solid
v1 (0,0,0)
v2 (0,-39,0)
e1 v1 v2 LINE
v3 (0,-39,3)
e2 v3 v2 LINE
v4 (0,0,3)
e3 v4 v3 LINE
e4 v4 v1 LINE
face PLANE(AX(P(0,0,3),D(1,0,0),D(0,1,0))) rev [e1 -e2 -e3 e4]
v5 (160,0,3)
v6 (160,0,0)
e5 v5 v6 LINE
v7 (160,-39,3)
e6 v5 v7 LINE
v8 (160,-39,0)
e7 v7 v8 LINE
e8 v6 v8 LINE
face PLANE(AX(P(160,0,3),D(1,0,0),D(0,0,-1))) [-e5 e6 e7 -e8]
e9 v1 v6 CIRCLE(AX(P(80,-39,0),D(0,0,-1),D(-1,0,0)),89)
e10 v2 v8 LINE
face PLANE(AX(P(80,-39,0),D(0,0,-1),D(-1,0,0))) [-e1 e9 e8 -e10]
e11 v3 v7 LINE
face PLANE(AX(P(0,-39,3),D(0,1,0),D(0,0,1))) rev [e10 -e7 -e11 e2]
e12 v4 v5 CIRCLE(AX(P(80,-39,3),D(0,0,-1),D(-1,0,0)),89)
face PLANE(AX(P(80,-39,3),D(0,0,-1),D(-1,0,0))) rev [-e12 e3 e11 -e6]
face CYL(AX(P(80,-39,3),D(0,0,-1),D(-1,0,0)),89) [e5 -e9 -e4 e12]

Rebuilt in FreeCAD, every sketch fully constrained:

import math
import FreeCAD as App
import Part
import Sketcher
from FreeCAD import Vector
Q = App.Units.Quantity

doc = App.newDocument("Part")
body = doc.addObject("PartDesign::Body", "Body")

# Sketch on XY plane
sketch1 = body.newObject("Sketcher::SketchObject", "Sketch")
sketch1.AttachmentSupport = (doc.getObject("XY_Plane"), [""])
sketch1.MapMode = "FlatFace"
sketch1.addGeometry([
    Part.LineSegment(Vector(160, -39, 0), Vector(160, 0, 0)),
    Part.ArcOfCircle(Part.Circle(Vector(80, -39, 0), Vector(0, 0, 1), 89), math.radians(26), math.radians(154)),
    Part.LineSegment(Vector(0, 0, 0), Vector(0, -39, 0)),
    Part.LineSegment(Vector(0, -39, 0), Vector(160, -39, 0)),
], False)
sketch1.addConstraint([
    Sketcher.Constraint("Coincident", 0, 2, 1, 1),
    Sketcher.Constraint("Coincident", 1, 2, 2, 1),
    Sketcher.Constraint("Coincident", 2, 2, 3, 1),
    Sketcher.Constraint("Coincident", 3, 2, 0, 1),
    Sketcher.Constraint("Vertical", 0),
    Sketcher.Constraint("Vertical", 2),
    Sketcher.Constraint("Horizontal", 3),
    Sketcher.Constraint("Coincident", 1, 2, -1, 1),
    Sketcher.Constraint("PointOnObject", 0, 2, -1),
    Sketcher.Constraint("Horizontal", 1, 3, 2, 2),
    Sketcher.Constraint("Radius", 1, Q("89 mm")),
    Sketcher.Constraint("DistanceX", 3, 1, 3, 2, Q("160 mm")),
])
pad1 = body.newObject("PartDesign::Pad", "Pad")
pad1.Profile = sketch1
pad1.Length = 3

doc.recompute()
